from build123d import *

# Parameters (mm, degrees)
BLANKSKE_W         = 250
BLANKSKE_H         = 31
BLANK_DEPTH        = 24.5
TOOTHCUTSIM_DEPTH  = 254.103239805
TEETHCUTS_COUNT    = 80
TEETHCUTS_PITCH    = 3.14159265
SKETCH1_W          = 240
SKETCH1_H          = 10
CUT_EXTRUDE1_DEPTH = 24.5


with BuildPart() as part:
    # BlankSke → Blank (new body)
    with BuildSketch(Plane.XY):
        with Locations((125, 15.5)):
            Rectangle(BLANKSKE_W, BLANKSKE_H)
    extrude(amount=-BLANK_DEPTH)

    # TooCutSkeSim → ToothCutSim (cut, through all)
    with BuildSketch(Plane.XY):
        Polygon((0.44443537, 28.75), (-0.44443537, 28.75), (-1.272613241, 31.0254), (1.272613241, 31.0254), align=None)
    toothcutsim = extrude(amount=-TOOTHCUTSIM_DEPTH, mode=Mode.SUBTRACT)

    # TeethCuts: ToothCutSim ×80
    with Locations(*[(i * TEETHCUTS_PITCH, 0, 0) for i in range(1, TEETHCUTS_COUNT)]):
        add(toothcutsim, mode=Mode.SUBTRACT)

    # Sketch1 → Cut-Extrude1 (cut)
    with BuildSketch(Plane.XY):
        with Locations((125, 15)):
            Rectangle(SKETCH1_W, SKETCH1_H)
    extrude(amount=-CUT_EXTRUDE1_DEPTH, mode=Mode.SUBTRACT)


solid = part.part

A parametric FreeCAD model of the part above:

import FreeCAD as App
import Part
import Sketcher

V = App.Vector
Q = App.Units.Quantity


def add_polygon(sketch, points):
    """Adds a closed chain of lines whose ends are joined by coincident constraints."""
    first, n = sketch.GeometryCount, len(points)
    for a, b in zip(points, points[1:] + points[:1]):
        sketch.addGeometry(Part.LineSegment(App.Vector(*a, 0), App.Vector(*b, 0)), False)
    for i in range(n):
        sketch.addConstraint(Sketcher.Constraint("Coincident", first + i, 2, first + (i + 1) % n, 1))

doc = App.newDocument("Part")
body = doc.addObject("PartDesign::Body", "Body")

# Sketch on XY plane
sketch1 = body.newObject("Sketcher::SketchObject", "Sketch")
sketch1.AttachmentSupport = (doc.getObject("XY_Plane"), [""])
sketch1.MapMode = "FlatFace"
add_polygon(sketch1, [(0, 31), (0, 0), (250, 0), (250, 31)])  # lines 0-3
sketch1.addConstraint([
    Sketcher.Constraint("Vertical", 0),
    Sketcher.Constraint("Horizontal", 1),
    Sketcher.Constraint("Vertical", 2),
    Sketcher.Constraint("Horizontal", 3),
    Sketcher.Constraint("Coincident", 0, 2, -1, 1),
    Sketcher.Constraint("DistanceX", 1, 1, 1, 2, Q("250 mm")),
    Sketcher.Constraint("DistanceY", 0, 2, 0, 1, Q("31 mm")),
])
pad1 = body.newObject("PartDesign::Pad", "Pad")
pad1.Profile = sketch1
pad1.Length = 24.5
pad1.Reversed = True

# Sketch on XY plane
sketch2 = body.newObject("Sketcher::SketchObject", "Sketch001")
sketch2.AttachmentSupport = (doc.getObject("XY_Plane"), [""])
sketch2.MapMode = "FlatFace"
add_polygon(sketch2, [(-0.4, 28.8), (0.4, 28.8), (1.3, 31), (-1.3, 31)])  # lines 0-3
sketch2.addConstraint([
    Sketcher.Constraint("Horizontal", 0),
    Sketcher.Constraint("Horizontal", 2),
    Sketcher.Constraint("Equal", 1, 3),
    Sketcher.Constraint("Angle", 1, Q("70 deg")),
    Sketcher.Constraint("DistanceY", -1, 1, 0, 2, Q("28.75 mm")),
    Sketcher.Constraint("DistanceX", 0, 1, 0, 2, Q("0.888871 mm")),
    Sketcher.Constraint("DistanceY", -1, 1, 1, 2, Q("31.0254 mm")),
    Sketcher.Constraint("DistanceX", -1, 1, 0, 2, Q("0.444435 mm")),
])
pocket1 = body.newObject("PartDesign::Pocket", "Pocket")
pocket1.Profile = sketch2
pocket1.Type = "ThroughAll"
doc.recompute()

linearpattern = body.newObject("PartDesign::LinearPattern", "LinearPattern")
linearpattern.Originals = [pocket1]
linearpattern.Direction = (doc.getObject("X_Axis"), [""])
linearpattern.Mode = "offset"
linearpattern.Offset = 3.141593
linearpattern.Occurrences = 80
body.Tip = linearpattern

# Sketch on XY plane
sketch3 = body.newObject("Sketcher::SketchObject", "Sketch002")
sketch3.AttachmentSupport = (doc.getObject("XY_Plane"), [""])
sketch3.MapMode = "FlatFace"
add_polygon(sketch3, [(5, 20), (5, 10), (245, 10), (245, 20)])  # lines 0-3
sketch3.addConstraint([
    Sketcher.Constraint("Vertical", 0),
    Sketcher.Constraint("Horizontal", 1),
    Sketcher.Constraint("Vertical", 2),
    Sketcher.Constraint("Horizontal", 3),
    Sketcher.Constraint("DistanceX", 1, 1, 1, 2, Q("240 mm")),
    Sketcher.Constraint("DistanceY", 0, 2, 0, 1, Q("10 mm")),
    Sketcher.Constraint("DistanceX", -1, 1, 0, 2, Q("5 mm")),
    Sketcher.Constraint("DistanceY", -1, 1, 0, 2, Q("10 mm")),
])
pocket2 = body.newObject("PartDesign::Pocket", "Pocket001")
pocket2.Profile = sketch3
pocket2.Length = 24.5

doc.recompute()
